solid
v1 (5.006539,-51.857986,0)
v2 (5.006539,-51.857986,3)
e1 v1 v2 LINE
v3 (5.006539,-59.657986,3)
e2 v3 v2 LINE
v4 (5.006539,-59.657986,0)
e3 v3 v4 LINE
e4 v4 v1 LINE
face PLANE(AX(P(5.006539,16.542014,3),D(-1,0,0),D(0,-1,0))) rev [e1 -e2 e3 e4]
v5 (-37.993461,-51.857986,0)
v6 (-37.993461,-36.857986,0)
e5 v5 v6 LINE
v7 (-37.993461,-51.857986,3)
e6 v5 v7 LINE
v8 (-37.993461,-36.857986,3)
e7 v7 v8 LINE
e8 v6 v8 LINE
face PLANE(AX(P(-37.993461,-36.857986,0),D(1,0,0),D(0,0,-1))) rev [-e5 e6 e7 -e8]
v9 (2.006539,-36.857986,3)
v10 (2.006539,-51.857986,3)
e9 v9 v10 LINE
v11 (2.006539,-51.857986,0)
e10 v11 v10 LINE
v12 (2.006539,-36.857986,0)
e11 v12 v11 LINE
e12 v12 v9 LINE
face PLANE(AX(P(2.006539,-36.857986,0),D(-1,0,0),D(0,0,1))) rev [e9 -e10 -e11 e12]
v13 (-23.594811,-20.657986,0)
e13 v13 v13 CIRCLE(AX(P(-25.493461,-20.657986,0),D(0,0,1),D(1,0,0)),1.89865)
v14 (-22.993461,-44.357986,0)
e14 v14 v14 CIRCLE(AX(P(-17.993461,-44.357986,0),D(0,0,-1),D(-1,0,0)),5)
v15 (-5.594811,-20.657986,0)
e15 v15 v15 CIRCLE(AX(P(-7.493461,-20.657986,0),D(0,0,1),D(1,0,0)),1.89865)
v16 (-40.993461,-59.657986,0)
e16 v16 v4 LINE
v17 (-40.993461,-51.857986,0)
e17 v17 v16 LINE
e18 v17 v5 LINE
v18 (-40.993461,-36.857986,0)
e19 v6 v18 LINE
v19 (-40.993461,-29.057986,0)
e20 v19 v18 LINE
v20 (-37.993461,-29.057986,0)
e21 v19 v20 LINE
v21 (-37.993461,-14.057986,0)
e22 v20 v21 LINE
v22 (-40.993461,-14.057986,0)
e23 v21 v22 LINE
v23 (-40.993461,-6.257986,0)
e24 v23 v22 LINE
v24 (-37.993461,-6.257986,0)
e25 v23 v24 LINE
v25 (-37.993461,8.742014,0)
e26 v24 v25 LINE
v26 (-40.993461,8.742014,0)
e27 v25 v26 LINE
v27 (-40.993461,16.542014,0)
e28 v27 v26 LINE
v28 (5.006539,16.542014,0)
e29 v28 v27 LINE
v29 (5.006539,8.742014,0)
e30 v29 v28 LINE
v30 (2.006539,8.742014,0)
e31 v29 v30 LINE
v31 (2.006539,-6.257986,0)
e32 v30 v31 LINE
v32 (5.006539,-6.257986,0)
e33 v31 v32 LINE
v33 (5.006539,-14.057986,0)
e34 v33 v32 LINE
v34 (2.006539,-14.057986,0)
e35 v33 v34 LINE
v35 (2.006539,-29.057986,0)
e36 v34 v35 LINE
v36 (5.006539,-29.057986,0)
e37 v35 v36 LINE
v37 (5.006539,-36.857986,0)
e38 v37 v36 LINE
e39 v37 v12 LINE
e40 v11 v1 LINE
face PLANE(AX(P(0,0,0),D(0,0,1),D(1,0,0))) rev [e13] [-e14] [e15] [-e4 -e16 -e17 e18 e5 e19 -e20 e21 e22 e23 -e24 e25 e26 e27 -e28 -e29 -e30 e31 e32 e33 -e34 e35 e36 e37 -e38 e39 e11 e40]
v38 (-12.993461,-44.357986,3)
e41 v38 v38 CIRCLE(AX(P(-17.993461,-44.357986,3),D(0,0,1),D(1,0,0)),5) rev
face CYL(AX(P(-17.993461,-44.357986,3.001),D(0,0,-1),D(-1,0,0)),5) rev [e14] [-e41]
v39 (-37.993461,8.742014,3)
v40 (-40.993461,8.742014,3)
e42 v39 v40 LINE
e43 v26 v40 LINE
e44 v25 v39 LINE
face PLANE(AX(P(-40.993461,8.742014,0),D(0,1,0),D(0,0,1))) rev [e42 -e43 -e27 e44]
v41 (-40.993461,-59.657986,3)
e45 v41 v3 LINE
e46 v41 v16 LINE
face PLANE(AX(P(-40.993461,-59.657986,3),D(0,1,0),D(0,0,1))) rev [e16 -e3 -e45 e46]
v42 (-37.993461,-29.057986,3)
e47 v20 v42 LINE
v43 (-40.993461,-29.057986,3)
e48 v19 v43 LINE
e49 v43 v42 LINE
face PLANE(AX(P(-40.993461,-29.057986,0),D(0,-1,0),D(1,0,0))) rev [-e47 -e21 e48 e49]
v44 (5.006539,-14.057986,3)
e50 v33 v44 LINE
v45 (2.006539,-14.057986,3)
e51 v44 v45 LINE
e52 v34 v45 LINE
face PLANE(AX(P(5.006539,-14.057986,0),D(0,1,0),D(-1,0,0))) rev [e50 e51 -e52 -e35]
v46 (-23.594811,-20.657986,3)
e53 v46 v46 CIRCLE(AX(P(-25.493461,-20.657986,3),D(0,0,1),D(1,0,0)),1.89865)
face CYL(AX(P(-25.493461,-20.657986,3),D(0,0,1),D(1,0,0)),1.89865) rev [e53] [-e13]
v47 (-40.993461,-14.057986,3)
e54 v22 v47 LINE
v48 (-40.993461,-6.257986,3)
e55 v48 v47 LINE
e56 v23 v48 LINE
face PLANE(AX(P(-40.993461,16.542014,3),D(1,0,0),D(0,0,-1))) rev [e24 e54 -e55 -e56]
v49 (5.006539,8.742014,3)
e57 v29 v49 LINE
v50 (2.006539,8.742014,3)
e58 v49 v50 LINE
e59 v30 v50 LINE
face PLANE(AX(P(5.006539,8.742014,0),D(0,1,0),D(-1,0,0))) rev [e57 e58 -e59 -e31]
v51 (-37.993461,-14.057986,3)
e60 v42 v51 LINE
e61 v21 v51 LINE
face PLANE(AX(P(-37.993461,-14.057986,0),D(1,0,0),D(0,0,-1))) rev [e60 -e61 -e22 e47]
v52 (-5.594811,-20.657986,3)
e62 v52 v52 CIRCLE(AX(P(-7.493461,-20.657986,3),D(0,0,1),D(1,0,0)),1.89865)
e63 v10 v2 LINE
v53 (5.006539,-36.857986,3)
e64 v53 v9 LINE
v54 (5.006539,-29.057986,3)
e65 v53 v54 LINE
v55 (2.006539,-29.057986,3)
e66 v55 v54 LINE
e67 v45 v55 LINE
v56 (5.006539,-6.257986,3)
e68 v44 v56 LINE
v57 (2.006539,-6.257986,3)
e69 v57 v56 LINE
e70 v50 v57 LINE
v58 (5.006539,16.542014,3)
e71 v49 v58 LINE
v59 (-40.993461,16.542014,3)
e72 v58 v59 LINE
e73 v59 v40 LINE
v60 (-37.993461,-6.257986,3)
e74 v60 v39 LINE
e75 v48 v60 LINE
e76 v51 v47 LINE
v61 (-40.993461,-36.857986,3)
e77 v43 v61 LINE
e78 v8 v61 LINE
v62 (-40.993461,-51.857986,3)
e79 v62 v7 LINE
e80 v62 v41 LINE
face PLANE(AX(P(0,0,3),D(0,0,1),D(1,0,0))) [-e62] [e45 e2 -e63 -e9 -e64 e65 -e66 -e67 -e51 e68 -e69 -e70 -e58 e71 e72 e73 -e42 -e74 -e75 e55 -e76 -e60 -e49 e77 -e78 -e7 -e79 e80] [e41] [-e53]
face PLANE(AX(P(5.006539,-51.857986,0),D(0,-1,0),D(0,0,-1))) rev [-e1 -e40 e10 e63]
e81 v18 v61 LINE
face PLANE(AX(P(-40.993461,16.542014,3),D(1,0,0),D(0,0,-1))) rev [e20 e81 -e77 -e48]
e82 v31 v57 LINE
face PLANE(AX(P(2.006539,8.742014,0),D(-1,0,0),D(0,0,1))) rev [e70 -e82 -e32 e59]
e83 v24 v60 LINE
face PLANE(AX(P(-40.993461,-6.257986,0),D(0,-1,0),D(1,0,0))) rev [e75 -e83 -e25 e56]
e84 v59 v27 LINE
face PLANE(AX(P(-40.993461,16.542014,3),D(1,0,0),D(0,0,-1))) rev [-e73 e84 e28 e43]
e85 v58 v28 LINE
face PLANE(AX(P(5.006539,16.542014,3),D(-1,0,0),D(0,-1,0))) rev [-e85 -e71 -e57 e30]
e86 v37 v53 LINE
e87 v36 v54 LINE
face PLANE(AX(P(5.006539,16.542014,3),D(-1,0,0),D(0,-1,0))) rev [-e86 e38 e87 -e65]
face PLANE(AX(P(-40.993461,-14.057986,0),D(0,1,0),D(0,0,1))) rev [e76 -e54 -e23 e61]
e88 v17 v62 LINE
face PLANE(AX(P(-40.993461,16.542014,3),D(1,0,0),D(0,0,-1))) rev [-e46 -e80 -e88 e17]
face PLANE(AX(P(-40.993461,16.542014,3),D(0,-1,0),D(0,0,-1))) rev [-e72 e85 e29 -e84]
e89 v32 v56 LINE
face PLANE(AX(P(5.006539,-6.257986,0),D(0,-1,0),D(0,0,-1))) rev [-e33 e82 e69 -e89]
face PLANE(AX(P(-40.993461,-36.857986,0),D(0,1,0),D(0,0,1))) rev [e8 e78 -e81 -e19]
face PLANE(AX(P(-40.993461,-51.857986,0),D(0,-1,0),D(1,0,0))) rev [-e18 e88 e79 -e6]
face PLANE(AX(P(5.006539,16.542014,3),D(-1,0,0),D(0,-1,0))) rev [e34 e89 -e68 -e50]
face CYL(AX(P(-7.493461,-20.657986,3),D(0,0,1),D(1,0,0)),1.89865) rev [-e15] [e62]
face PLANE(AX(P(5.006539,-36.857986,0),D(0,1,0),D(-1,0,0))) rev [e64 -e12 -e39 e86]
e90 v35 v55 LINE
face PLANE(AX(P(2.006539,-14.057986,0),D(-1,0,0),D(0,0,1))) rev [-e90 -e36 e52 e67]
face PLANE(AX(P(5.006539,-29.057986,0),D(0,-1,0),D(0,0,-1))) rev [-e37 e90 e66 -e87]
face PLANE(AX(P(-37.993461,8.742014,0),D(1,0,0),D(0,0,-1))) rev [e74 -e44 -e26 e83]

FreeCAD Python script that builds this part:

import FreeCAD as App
import Part
import Sketcher
from FreeCAD import Vector


def add_polygon(sketch, points):
    """Adds a closed chain of lines whose ends are joined by coincident constraints."""
    first, n = sketch.GeometryCount, len(points)
    for a, b in zip(points, points[1:] + points[:1]):
        sketch.addGeometry(Part.LineSegment(App.Vector(*a, 0), App.Vector(*b, 0)), False)
    for i in range(n):
        sketch.addConstraint(Sketcher.Constraint("Coincident", first + i, 2, first + (i + 1) % n, 1))

doc = App.newDocument("Part")
params = doc.addObject("Spreadsheet::Sheet", "Params")
for row, (alias, value) in enumerate([
    ("sketch1_width", "46 mm"),
    ("sketch1_height", "76.2 mm"),
    ("pad1_length", "3 mm"),
    ("sketch2_width", "3 mm"),
    ("sketch2_height", "15 mm"),
    ("linearpattern_pitch", "22.8 mm"),
    ("hole_diameter", "3.7973 mm"),
    ("sketch4_diameter", "10 mm"),
], start=1):
    params.set(f"A{row}", alias)
    params.set(f"B{row}", "=" + value)
    params.setAlias(f"B{row}", alias)

body = doc.addObject("PartDesign::Body", "Body")

# Sketch on XY plane
sketch1 = body.newObject("Sketcher::SketchObject", "Sketch")
sketch1.AttachmentSupport = (doc.getObject("XY_Plane"), [""])
sketch1.MapMode = "FlatFace"
add_polygon(sketch1, [(-41, 17), (-41, -60), (5, -60), (5, 17)])  # lines 0-3
sketch1.addConstraint([
    Sketcher.Constraint("Vertical", 0),
    Sketcher.Constraint("Horizontal", 1),
    Sketcher.Constraint("Vertical", 2),
    Sketcher.Constraint("Horizontal", 3),
    Sketcher.Constraint("DistanceX", 1, 1, 1, 2, 46.0),
    Sketcher.Constraint("DistanceY", 0, 2, 0, 1, 76.2),
    Sketcher.Constraint("DistanceX", 0, 2, -1, 1, 40.993461),
    Sketcher.Constraint("DistanceY", 0, 2, -1, 1, 59.657986),
])
sketch1.setExpression("Constraints[8]", "Params.sketch1_width")
sketch1.setExpression("Constraints[9]", "Params.sketch1_height")
pad1 = body.newObject("PartDesign::Pad", "Pad")
pad1.Profile = sketch1
pad1.setExpression("Length", "Params.pad1_length")

# Sketch on XY plane
sketch2 = body.newObject("Sketcher::SketchObject", "Sketch001")
sketch2.AttachmentSupport = (doc.getObject("XY_Plane"), [""])
sketch2.MapMode = "FlatFace"
sketch2.AttachmentOffset = App.Placement(Vector(0, 0, 3), App.Rotation())
add_polygon(sketch2, [(-41, 8.7), (-41, -6.3), (-38, -6.3), (-38, 8.7)])  # lines 0-3
add_polygon(sketch2, [(2, 8.7), (2, -6.3), (5, -6.3), (5, 8.7)])  # lines 4-7
sketch2.addConstraint([
    Sketcher.Constraint("Vertical", 0),
    Sketcher.Constraint("Horizontal", 1),
    Sketcher.Constraint("Vertical", 2),
    Sketcher.Constraint("Horizontal", 3),
    Sketcher.Constraint("Vertical", 4),
    Sketcher.Constraint("Horizontal", 5),
    Sketcher.Constraint("Vertical", 6),
    Sketcher.Constraint("Horizontal", 7),
    Sketcher.Constraint("Horizontal", 1, 2, 4, 2),
    Sketcher.Constraint("Horizontal", 3, 2, 6, 2),
    Sketcher.Constraint("Equal", 3, 5),
    Sketcher.Constraint("DistanceX", 1, 1, 1, 2, 3.0),
    Sketcher.Constraint("DistanceY", 0, 2, 0, 1, 15.0),
    Sketcher.Constraint("DistanceX", 1, 2, 4, 2, 40.0),
    Sketcher.Constraint("DistanceX", 0, 2, -1, 1, 40.993461),
    Sketcher.Constraint("DistanceY", 0, 2, -1, 1, 6.257986),
])
sketch2.setExpression("Constraints[19]", "Params.sketch2_width")
sketch2.setExpression("Constraints[20]", "Params.sketch2_height")
pocket1 = body.newObject("PartDesign::Pocket", "Pocket")
pocket1.Profile = sketch2
pocket1.Type = "ThroughAll"
doc.recompute()

linearpattern = body.newObject("PartDesign::LinearPattern", "LinearPattern")
linearpattern.Originals = [pocket1]
linearpattern.Direction = (doc.getObject("Y_Axis"), [""])
linearpattern.Mode = "offset"
linearpattern.setExpression("Offset", "Params.linearpattern_pitch")
linearpattern.Occurrences = 3
linearpattern.Reversed = True
body.Tip = linearpattern

# Sketch on XY plane
sketch3 = body.newObject("Sketcher::SketchObject", "Sketch002")
sketch3.AttachmentSupport = (doc.getObject("XY_Plane"), [""])
sketch3.MapMode = "FlatFace"
sketch3.AttachmentOffset = App.Placement(Vector(0, 0, 3), App.Rotation())
sketch3.addGeometry([
    Part.Circle(Vector(-25.5, -20.7, 0), Vector(0, 0, 1), 1.9),
    Part.Circle(Vector(-7.5, -20.7, 0), Vector(0, 0, 1), 1.9),
], False)
sketch3.addConstraint([
    Sketcher.Constraint("Equal", 0, 1),
    Sketcher.Constraint("Horizontal", 0, 3, 1, 3),
    Sketcher.Constraint("DistanceX", 0, 3, 1, 3, 18.0),
    Sketcher.Constraint("Diameter", 0, 3.7973),
    Sketcher.Constraint("DistanceX", 0, 3, -1, 1, 25.493461),
    Sketcher.Constraint("DistanceY", 0, 3, -1, 1, 20.657986),
])
doc.recompute()
hole = body.newObject("PartDesign::Hole", "Hole")
hole.Profile = sketch3
hole.ThreadType = "None"
hole.setExpression("Diameter", "Params.hole_diameter")
hole.DepthType = "ThroughAll"

# Sketch on XY plane
sketch4 = body.newObject("Sketcher::SketchObject", "Sketch003")
sketch4.AttachmentSupport = (doc.getObject("XY_Plane"), [""])
sketch4.MapMode = "FlatFace"
sketch4.addGeometry(Part.Circle(Vector(-18, -44, 0), Vector(0, 0, 1), 5), False)
sketch4.addConstraint([
    Sketcher.Constraint("Diameter", 0, 10.0),
    Sketcher.Constraint("DistanceX", 0, 3, -1, 1, 17.993461),
    Sketcher.Constraint("DistanceY", 0, 3, -1, 1, 44.357986),
])
sketch4.setExpression("Constraints[0]", "Params.sketch4_diameter")
pocket2 = body.newObject("PartDesign::Pocket", "Pocket001")
pocket2.Profile = sketch4
pocket2.Type = "UpToFirst"
pocket2.Reversed = True

doc.recompute()
